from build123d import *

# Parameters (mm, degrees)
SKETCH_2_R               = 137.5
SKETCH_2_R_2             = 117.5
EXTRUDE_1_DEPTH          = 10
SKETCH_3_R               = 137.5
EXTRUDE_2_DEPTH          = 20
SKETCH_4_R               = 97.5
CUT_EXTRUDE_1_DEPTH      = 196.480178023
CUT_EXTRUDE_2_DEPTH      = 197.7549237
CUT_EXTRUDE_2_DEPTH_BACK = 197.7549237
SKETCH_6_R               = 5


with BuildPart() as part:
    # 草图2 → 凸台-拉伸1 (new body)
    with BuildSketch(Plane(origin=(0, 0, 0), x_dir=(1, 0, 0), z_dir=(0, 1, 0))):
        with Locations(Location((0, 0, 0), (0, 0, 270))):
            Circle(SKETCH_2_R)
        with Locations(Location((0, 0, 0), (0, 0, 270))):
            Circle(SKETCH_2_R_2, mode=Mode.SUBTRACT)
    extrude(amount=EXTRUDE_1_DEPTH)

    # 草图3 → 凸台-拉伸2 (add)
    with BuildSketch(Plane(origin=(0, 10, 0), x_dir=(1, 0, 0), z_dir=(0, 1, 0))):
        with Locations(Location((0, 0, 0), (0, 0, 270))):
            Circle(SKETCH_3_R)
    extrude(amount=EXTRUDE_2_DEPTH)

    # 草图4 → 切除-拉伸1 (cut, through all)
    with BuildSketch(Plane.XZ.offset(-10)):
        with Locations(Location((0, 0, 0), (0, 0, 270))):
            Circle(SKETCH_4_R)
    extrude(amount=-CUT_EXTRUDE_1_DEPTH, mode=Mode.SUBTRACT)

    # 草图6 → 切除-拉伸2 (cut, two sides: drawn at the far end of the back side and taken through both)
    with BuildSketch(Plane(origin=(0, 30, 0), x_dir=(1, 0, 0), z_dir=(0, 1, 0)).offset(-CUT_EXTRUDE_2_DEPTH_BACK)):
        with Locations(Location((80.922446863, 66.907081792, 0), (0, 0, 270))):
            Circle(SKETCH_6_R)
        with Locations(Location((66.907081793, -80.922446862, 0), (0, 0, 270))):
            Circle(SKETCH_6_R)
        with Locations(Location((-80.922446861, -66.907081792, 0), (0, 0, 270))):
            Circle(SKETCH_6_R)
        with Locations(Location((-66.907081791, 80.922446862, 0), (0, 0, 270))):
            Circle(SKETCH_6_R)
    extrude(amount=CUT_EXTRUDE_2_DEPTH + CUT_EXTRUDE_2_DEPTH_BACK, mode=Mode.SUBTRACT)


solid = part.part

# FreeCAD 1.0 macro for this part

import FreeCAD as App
import Part
import Sketcher

doc = App.newDocument("Part")
params = doc.addObject("Spreadsheet::Sheet", "Params")
for row, (alias, value) in enumerate([
    ("sketch1_diameter", "275 mm"),
    ("sketch1_diameter2", "235 mm"),
    ("pad1_length", "10 mm"),
    ("sketch2_diameter", "275 mm"),
    ("pad2_length", "20 mm"),
    ("sketch3_diameter", "195 mm"),
    ("sketch4_diameter", "10 mm"),
], start=1):
    params.set(f"A{row}", alias)
    params.set(f"B{row}", "=" + value)
    params.setAlias(f"B{row}", alias)

body = doc.addObject("PartDesign::Body", "Body")

sketch1 = doc.addObject("Sketcher::SketchObject", "Sketch")
body.addObject(sketch1)
sketch1.AttachmentSupport = (doc.XZ_Plane, [""])
sketch1.MapMode = "FlatFace"
sketch1.addGeometry([
    Part.Circle(App.Vector(0, 0, 0), App.Vector(0, 0, 1), 138),
    Part.Circle(App.Vector(0, 0, 0), App.Vector(0, 0, 1), 118),
], False)
sketch1.addConstraint([
    Sketcher.Constraint("Coincident", 0, 3, -1, 1),
    Sketcher.Constraint("Coincident", 1, 3, -1, 1),
    Sketcher.Constraint("Diameter", 0, 275.0),
    Sketcher.Constraint("Diameter", 1, 235.0),
])
sketch1.setExpression("Constraints[2]", "Params.sketch1_diameter")
sketch1.setExpression("Constraints[3]", "Params.sketch1_diameter2")
pad1 = doc.addObject("PartDesign::Pad", "Pad")
body.addObject(pad1)
pad1.Profile = sketch1
pad1.setExpression("Length", "Params.pad1_length")
pad1.Reversed = True

sketch2 = doc.addObject("Sketcher::SketchObject", "Sketch001")
body.addObject(sketch2)
sketch2.AttachmentSupport = (doc.XZ_Plane, [""])
sketch2.MapMode = "FlatFace"
sketch2.AttachmentOffset = App.Placement(App.Vector(0, 0, -10), App.Rotation())
sketch2.addGeometry(Part.Circle(App.Vector(0, 0, 0), App.Vector(0, 0, 1), 138), False)
sketch2.addConstraint([
    Sketcher.Constraint("Coincident", 0, 3, -1, 1),
    Sketcher.Constraint("Diameter", 0, 275.0),
])
sketch2.setExpression("Constraints[1]", "Params.sketch2_diameter")
pad2 = doc.addObject("PartDesign::Pad", "Pad001")
body.addObject(pad2)
pad2.Profile = sketch2
pad2.setExpression("Length", "Params.pad2_length")
pad2.Reversed = True

sketch3 = doc.addObject("Sketcher::SketchObject", "Sketch002")
body.addObject(sketch3)
sketch3.AttachmentSupport = (doc.XZ_Plane, [""])
sketch3.MapMode = "FlatFace"
sketch3.AttachmentOffset = App.Placement(App.Vector(0, 0, -10), App.Rotation())
sketch3.addGeometry(Part.Circle(App.Vector(0, 0, 0), App.Vector(0, 0, 1), 98), False)
sketch3.addConstraint([
    Sketcher.Constraint("Coincident", 0, 3, -1, 1),
    Sketcher.Constraint("Diameter", 0, 195.0),
])
sketch3.setExpression("Constraints[1]", "Params.sketch3_diameter")
pocket1 = doc.addObject("PartDesign::Pocket", "Pocket")
body.addObject(pocket1)
pocket1.Profile = sketch3
pocket1.Type = "ThroughAll"

sketch4 = doc.addObject("Sketcher::SketchObject", "Sketch003")
body.addObject(sketch4)
sketch4.AttachmentSupport = (doc.XZ_Plane, [""])
sketch4.MapMode = "FlatFace"
sketch4.AttachmentOffset = App.Placement(App.Vector(0, 0, -30), App.Rotation())
sketch4.addGeometry([
    Part.Circle(App.Vector(81, -67, 0), App.Vector(0, 0, 1), 5),
    Part.Circle(App.Vector(67, 81, 0), App.Vector(0, 0, 1), 5),
    Part.Circle(App.Vector(-81, 67, 0), App.Vector(0, 0, 1), 5),
    Part.Circle(App.Vector(-67, -81, 0), App.Vector(0, 0, 1), 5),
], False)
sketch4.addConstraint([
    Sketcher.Constraint("Equal", 0, 1),
    Sketcher.Constraint("Equal", 1, 2),
    Sketcher.Constraint("Equal", 2, 3),
    Sketcher.Constraint("Symmetric", 0, 3, 2, 3, -1, 1),
    Sketcher.Constraint("Symmetric", 1, 3, 3, 3, -1, 1),
    Sketcher.Constraint("Diameter", 0, 10.0),
    Sketcher.Constraint("DistanceY", 0, 3, -1, 1, 66.907082),
    Sketcher.Constraint("DistanceX", -1, 1, 1, 3, 66.907082),
    Sketcher.Constraint("DistanceY", 0, 3, 1, 3, 147.829529),
    Sketcher.Constraint("DistanceX", 2, 3, 1, 3, 147.829529),
])
sketch4.setExpression("Constraints[5]", "Params.sketch4_diameter")
pocket2 = doc.addObject("PartDesign::Pocket", "Pocket001")
body.addObject(pocket2)
pocket2.Profile = sketch4
pocket2.Type = "ThroughAll"
pocket2.Midplane = True

doc.recompute()
